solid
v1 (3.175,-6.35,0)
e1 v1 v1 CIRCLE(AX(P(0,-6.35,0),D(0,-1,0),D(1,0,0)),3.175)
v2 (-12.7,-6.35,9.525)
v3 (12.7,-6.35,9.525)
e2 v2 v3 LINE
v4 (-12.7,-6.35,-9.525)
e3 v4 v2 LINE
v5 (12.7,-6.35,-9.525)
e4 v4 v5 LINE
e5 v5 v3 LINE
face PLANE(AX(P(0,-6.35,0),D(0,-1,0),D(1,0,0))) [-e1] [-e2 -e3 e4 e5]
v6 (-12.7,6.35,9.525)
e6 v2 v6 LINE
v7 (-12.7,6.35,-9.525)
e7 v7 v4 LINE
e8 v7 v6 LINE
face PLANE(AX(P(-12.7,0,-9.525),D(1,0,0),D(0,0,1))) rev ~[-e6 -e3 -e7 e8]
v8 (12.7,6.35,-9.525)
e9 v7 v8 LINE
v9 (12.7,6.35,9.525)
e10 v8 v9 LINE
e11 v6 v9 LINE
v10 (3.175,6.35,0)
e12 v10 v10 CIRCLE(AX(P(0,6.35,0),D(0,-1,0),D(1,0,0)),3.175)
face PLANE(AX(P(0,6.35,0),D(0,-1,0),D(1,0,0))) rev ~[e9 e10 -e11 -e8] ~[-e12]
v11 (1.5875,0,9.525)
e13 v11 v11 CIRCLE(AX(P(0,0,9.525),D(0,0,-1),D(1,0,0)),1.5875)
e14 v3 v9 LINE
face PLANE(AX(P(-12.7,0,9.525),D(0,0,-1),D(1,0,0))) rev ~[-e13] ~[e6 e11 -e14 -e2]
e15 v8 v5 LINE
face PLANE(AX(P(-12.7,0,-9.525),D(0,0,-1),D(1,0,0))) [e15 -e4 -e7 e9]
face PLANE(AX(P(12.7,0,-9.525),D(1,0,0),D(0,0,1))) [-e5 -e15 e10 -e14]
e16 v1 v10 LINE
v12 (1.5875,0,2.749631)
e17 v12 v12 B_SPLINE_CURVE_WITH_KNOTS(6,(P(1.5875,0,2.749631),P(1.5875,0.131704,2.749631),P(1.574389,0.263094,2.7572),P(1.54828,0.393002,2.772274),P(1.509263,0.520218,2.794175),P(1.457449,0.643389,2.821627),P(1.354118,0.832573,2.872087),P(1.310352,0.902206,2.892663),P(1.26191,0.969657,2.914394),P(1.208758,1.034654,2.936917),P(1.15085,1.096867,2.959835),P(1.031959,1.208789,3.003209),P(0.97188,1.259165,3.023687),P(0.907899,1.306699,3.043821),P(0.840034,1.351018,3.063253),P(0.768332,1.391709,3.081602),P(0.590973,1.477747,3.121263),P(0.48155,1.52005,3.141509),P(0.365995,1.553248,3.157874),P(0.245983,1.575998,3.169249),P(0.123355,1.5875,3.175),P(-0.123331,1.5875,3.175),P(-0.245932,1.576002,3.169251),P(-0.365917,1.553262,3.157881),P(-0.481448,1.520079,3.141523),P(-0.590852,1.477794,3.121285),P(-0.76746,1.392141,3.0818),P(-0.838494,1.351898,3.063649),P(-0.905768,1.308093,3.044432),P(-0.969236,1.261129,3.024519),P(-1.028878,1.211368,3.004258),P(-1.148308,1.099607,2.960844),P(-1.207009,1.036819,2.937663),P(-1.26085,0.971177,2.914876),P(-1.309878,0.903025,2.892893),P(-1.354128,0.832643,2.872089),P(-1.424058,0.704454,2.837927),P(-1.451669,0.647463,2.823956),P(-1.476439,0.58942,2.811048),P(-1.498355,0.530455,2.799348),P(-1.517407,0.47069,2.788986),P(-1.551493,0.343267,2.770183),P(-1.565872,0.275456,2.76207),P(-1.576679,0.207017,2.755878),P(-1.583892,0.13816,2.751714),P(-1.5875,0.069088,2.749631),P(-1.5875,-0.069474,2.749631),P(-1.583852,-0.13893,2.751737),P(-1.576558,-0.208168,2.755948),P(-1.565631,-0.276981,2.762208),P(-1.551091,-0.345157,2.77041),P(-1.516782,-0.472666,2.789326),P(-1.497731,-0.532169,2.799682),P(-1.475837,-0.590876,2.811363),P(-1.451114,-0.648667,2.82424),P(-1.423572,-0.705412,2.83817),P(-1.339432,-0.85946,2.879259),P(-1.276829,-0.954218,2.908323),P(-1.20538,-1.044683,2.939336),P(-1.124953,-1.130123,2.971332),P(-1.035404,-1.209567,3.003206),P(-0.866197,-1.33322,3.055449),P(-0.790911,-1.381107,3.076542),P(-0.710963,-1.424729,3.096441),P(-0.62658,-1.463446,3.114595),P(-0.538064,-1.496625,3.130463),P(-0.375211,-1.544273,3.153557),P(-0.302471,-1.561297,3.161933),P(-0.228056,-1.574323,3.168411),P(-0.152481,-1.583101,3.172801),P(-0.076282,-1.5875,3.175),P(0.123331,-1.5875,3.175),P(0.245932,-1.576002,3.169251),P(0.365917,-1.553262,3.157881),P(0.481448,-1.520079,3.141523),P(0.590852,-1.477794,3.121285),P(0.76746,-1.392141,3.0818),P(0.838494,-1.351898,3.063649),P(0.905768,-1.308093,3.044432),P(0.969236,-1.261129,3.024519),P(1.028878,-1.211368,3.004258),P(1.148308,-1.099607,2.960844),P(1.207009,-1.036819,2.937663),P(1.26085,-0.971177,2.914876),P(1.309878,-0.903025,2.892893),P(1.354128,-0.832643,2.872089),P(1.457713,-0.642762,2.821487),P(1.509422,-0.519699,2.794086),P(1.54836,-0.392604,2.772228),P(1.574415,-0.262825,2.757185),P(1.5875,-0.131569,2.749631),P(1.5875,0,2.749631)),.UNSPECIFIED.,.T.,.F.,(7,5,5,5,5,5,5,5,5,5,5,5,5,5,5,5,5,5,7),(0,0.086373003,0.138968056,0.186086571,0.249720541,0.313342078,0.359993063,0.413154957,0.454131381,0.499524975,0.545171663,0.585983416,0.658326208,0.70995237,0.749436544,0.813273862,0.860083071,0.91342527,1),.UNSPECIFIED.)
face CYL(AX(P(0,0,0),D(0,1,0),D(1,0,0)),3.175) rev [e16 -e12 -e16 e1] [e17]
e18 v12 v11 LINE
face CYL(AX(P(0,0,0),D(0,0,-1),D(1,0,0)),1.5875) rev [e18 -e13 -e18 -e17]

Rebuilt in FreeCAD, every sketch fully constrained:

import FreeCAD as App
import Part
import Sketcher
from FreeCAD import Vector
Q = App.Units.Quantity

doc = App.newDocument("Part")
body = doc.addObject("PartDesign::Body", "Body")

# Sketch on XZ plane
sketch1 = body.newObject("Sketcher::SketchObject", "Sketch")
sketch1.AttachmentSupport = (doc.getObject("XZ_Plane"), [""])
sketch1.MapMode = "FlatFace"
sketch1.addGeometry([
    Part.LineSegment(Vector(-12.7, 9.5, 0), Vector(-12.7, -9.5, 0)),  # 0
    Part.LineSegment(Vector(-12.7, -9.5, 0), Vector(12.7, -9.5, 0)),  # 1
    Part.LineSegment(Vector(12.7, -9.5, 0), Vector(12.7, 9.5, 0)),  # 2
    Part.LineSegment(Vector(12.7, 9.5, 0), Vector(-12.7, 9.5, 0)),  # 3
    Part.Circle(Vector(0, 0, 0), Vector(0, 0, 1), 3.2),  # 4
], False)
sketch1.addConstraint([
    Sketcher.Constraint("Coincident", 0, 2, 1, 1),
    Sketcher.Constraint("Coincident", 1, 2, 2, 1),
    Sketcher.Constraint("Coincident", 2, 2, 3, 1),
    Sketcher.Constraint("Coincident", 3, 2, 0, 1),
    Sketcher.Constraint("Vertical", 0),
    Sketcher.Constraint("Horizontal", 1),
    Sketcher.Constraint("Vertical", 2),
    Sketcher.Constraint("Horizontal", 3),
    Sketcher.Constraint("Coincident", 4, 3, -1, 1),
    Sketcher.Constraint("Symmetric", 0, 2, 2, 2, -1, 1),
    Sketcher.Constraint("Diameter", 4, Q("0.25 in")),
    Sketcher.Constraint("DistanceX", 1, 1, 1, 2, Q("1 in")),
    Sketcher.Constraint("DistanceY", 0, 2, 0, 1, Q("0.75 in")),
])
pad1 = body.newObject("PartDesign::Pad", "Pad")
pad1.Profile = sketch1
pad1.Length = Q("0.5 in")
pad1.Midplane = True

# Sketch on XY plane
sketch2 = body.newObject("Sketcher::SketchObject", "Sketch001")
sketch2.AttachmentSupport = (doc.getObject("XY_Plane"), [""])
sketch2.MapMode = "FlatFace"
sketch2.addGeometry(Part.Circle(Vector(0, 0, 0), Vector(0, 0, 1), 1.6), False)
sketch2.addConstraint([
    Sketcher.Constraint("Coincident", 0, 3, -1, 1),
    Sketcher.Constraint("Diameter", 0, Q("0.125 in")),
])
pocket1 = body.newObject("PartDesign::Pocket", "Pocket")
pocket1.Profile = sketch2
pocket1.Length = Q("1 in")
pocket1.Reversed = True

doc.recompute()
